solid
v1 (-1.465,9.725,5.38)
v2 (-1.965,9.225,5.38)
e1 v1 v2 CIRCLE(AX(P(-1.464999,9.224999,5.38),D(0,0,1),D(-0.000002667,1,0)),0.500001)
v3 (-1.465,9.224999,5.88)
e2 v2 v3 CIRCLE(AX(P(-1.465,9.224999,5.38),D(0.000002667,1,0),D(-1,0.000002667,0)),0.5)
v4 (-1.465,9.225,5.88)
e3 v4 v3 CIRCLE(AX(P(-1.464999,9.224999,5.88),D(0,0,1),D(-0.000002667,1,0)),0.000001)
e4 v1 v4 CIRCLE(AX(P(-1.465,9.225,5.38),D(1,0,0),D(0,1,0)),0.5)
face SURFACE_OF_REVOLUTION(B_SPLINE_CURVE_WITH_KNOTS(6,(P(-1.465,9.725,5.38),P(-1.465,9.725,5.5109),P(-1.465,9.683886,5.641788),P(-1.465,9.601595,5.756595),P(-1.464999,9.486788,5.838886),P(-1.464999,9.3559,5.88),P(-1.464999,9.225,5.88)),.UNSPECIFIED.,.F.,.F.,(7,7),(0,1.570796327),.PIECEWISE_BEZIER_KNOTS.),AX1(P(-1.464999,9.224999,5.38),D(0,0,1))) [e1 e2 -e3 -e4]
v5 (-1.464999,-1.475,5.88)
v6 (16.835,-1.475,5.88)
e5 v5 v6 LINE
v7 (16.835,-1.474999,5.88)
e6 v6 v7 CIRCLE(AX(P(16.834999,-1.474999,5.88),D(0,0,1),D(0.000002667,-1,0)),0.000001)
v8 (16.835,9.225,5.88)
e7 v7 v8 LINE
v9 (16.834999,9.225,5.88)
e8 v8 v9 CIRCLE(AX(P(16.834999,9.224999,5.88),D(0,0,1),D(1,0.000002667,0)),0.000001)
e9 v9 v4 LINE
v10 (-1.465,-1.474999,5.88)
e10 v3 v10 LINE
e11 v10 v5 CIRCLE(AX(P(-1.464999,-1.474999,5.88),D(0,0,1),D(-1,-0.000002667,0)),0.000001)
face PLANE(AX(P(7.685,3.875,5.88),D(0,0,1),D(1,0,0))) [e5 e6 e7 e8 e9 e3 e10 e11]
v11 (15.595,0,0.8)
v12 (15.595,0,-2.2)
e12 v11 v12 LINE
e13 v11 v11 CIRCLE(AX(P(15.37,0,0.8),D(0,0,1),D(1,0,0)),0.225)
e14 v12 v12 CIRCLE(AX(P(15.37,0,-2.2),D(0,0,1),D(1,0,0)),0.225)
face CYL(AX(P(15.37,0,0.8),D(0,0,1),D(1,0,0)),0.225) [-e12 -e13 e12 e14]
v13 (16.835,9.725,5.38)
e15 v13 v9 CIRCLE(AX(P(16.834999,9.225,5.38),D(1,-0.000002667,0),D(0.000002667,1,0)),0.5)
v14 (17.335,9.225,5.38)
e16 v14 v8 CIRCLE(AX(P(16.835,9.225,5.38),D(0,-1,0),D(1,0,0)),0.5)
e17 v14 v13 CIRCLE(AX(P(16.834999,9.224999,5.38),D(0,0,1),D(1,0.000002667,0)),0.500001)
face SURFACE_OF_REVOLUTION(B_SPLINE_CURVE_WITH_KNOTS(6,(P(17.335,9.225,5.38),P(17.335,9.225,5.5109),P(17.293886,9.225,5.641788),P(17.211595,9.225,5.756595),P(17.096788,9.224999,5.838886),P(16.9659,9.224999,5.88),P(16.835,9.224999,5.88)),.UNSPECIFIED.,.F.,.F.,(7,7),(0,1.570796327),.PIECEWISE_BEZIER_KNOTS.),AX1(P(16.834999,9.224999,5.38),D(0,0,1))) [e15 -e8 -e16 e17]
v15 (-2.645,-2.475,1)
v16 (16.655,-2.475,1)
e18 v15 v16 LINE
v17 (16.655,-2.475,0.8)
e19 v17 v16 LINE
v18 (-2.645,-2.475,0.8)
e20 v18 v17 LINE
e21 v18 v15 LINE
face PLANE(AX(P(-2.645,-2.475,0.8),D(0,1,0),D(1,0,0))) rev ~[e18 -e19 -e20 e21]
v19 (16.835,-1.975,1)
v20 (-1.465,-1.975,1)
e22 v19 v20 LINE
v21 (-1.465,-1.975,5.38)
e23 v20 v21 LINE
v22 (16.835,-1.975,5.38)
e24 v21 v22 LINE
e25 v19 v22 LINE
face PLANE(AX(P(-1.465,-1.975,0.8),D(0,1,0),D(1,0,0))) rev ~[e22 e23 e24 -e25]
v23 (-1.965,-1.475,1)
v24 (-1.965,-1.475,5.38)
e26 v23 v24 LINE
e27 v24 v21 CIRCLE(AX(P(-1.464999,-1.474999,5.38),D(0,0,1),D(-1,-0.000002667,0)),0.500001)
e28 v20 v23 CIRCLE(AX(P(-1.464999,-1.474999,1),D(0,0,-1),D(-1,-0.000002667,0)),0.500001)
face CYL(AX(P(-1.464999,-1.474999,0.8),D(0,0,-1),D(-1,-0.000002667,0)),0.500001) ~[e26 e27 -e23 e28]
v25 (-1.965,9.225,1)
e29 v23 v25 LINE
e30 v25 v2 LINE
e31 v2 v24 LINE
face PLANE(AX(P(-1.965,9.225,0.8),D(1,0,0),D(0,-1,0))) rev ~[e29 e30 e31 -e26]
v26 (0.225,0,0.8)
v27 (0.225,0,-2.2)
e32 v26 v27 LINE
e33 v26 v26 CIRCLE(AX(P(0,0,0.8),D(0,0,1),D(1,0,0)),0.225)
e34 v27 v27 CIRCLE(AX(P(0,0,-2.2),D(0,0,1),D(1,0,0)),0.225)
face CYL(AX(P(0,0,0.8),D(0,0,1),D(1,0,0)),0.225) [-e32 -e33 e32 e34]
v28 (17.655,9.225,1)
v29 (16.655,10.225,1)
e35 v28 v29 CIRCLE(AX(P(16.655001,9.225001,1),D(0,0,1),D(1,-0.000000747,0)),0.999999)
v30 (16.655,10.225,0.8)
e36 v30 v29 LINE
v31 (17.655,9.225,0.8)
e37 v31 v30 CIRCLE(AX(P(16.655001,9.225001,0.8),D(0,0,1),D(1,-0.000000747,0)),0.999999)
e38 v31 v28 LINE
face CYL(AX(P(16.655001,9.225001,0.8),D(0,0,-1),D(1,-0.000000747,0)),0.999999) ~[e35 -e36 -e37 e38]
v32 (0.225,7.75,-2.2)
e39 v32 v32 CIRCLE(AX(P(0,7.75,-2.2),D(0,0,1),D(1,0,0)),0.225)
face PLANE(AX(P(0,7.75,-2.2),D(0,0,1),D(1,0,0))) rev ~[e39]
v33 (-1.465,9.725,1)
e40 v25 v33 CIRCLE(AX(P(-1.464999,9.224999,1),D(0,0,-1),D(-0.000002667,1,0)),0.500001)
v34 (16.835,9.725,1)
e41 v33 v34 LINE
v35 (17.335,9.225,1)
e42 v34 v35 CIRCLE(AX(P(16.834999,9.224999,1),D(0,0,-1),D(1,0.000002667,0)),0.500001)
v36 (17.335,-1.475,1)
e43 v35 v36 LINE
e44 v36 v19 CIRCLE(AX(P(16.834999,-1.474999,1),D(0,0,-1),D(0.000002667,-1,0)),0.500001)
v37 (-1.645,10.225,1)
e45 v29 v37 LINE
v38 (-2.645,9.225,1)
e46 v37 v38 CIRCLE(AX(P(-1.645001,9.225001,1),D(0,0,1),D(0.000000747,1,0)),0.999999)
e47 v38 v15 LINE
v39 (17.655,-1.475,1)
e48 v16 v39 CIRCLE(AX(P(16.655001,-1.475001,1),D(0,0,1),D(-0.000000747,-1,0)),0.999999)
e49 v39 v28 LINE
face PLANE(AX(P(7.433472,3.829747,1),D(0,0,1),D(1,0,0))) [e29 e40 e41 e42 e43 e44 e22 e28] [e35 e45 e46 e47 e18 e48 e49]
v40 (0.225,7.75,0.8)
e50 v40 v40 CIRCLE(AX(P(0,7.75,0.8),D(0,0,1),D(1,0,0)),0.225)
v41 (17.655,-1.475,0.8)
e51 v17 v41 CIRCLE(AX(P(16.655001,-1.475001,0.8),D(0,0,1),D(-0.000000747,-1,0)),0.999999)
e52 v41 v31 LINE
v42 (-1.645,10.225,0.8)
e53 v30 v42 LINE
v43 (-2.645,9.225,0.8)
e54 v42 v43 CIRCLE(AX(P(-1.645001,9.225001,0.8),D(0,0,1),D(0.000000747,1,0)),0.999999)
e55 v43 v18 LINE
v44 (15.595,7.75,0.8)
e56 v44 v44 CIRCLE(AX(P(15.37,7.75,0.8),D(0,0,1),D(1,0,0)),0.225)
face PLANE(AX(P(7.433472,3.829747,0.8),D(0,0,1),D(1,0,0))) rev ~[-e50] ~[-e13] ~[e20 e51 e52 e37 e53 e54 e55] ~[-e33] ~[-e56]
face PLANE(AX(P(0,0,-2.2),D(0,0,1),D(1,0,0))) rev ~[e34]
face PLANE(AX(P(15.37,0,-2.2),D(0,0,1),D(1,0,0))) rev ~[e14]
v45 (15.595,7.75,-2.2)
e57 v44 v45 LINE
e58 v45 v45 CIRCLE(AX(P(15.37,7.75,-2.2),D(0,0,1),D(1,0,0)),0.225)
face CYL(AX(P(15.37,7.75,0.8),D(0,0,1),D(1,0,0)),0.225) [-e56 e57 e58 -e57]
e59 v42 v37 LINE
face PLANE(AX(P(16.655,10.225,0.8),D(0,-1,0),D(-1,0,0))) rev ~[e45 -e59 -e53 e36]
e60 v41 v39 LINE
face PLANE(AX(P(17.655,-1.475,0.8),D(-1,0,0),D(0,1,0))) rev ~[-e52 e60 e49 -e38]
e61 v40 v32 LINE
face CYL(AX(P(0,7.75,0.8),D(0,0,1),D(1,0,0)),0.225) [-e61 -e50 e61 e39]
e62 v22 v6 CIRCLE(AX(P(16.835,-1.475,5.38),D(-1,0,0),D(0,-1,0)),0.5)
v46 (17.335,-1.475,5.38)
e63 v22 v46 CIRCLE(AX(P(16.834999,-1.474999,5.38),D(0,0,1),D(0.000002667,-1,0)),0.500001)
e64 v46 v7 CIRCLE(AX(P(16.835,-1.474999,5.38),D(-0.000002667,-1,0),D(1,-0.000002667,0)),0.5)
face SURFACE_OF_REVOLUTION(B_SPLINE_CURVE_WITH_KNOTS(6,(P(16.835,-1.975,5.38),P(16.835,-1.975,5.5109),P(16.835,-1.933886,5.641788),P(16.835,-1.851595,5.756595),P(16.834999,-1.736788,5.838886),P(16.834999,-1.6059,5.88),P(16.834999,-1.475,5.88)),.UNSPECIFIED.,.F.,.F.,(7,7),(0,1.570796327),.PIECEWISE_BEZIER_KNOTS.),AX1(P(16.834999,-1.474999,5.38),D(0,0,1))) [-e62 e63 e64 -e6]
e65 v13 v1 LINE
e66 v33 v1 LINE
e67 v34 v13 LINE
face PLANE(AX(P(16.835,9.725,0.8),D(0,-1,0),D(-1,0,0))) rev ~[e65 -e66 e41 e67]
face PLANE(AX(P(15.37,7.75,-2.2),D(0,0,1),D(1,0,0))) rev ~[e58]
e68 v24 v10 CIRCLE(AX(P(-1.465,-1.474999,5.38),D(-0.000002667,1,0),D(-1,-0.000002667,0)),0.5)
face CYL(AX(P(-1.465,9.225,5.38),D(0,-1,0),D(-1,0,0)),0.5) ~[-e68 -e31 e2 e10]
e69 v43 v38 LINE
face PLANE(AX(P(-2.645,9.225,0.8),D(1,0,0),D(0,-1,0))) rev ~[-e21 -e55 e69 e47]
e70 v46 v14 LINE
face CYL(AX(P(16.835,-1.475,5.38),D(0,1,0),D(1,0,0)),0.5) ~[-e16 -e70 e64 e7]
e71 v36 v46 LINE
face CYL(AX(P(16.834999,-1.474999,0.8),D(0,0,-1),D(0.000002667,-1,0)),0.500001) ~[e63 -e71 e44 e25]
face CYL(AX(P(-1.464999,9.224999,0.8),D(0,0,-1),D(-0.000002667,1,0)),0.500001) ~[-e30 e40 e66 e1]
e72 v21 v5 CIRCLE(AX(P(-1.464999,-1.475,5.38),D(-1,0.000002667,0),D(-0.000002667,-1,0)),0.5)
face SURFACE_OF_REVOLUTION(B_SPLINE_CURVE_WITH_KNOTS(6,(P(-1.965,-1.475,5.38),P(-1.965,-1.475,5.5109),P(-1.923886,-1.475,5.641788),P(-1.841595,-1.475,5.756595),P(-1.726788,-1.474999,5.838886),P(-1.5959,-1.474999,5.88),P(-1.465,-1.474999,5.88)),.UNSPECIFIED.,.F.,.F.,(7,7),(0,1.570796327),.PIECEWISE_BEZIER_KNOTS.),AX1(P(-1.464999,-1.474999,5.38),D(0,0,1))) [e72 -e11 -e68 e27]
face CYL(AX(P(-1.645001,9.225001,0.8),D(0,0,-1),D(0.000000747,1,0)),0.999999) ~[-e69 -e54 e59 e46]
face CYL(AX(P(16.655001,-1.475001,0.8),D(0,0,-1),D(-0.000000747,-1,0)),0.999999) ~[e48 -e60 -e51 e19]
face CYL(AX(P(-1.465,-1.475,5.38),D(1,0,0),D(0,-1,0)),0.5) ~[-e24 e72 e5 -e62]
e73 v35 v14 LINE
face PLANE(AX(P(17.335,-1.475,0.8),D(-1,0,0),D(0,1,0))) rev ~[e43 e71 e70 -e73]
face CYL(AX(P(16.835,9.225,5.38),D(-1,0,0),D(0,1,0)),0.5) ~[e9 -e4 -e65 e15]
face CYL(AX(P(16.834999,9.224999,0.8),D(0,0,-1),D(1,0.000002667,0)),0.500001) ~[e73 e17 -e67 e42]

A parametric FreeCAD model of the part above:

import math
import FreeCAD as App
import Part
import Sketcher


def edges_at(feature, points):
    """Names of the edges that pass closest to the given points."""
    edges = feature.Shape.Edges
    near = lambda p: min(range(len(edges)), key=lambda i: edges[i].distToShape(Part.Vertex(*p))[0])
    return sorted({f"Edge{near(p) + 1}" for p in points})

doc = App.newDocument("Part")
body = doc.addObject("PartDesign::Body", "Body")

# Sketch on XY plane
sketch1 = body.newObject("Sketcher::SketchObject", "Sketch")
sketch1.AttachmentSupport = (doc.getObject("XY_Plane"), [""])
sketch1.MapMode = "FlatFace"
sketch1.AttachmentOffset = App.Placement(App.Vector(0, 0, 0.8), App.Rotation())
sketch1.addGeometry(Part.LineSegment(App.Vector(-2.6, -2.5, 0), App.Vector(16.7, -2.5, 0)), False)
sketch1.addGeometry(Part.ArcOfCircle(Part.Circle(App.Vector(16.7, -1.5, 0), App.Vector(0, 0, 1), 1), math.radians(-90), math.radians(0)), False)
sketch1.addGeometry(Part.LineSegment(App.Vector(17.7, -1.5, 0), App.Vector(17.7, 9.2, 0)), False)
sketch1.addGeometry(Part.ArcOfCircle(Part.Circle(App.Vector(16.7, 9.2, 0), App.Vector(0, 0, 1), 1), math.radians(0), math.radians(90)), False)
sketch1.addGeometry(Part.LineSegment(App.Vector(16.7, 10.2, 0), App.Vector(-1.6, 10.2, 0)), False)
sketch1.addGeometry(Part.ArcOfCircle(Part.Circle(App.Vector(-1.6, 9.2, 0), App.Vector(0, 0, 1), 1), math.radians(90), math.radians(180)), False)
sketch1.addGeometry(Part.LineSegment(App.Vector(-2.6, 9.2, 0), App.Vector(-2.6, -2.5, 0)), False)
sketch1.addConstraint(Sketcher.Constraint("Tangent", 0, 2, 1, 1))
sketch1.addConstraint(Sketcher.Constraint("Tangent", 1, 2, 2, 1))
sketch1.addConstraint(Sketcher.Constraint("Tangent", 2, 2, 3, 1))
sketch1.addConstraint(Sketcher.Constraint("Tangent", 3, 2, 4, 1))
sketch1.addConstraint(Sketcher.Constraint("Tangent", 4, 2, 5, 1))
sketch1.addConstraint(Sketcher.Constraint("Tangent", 5, 2, 6, 1))
sketch1.addConstraint(Sketcher.Constraint("Coincident", 6, 2, 0, 1))
sketch1.addConstraint(Sketcher.Constraint("Horizontal", 0))
sketch1.addConstraint(Sketcher.Constraint("Vertical", 2))
sketch1.addConstraint(Sketcher.Constraint("Horizontal", 4))
sketch1.addConstraint(Sketcher.Constraint("Vertical", 6))
sketch1.addConstraint(Sketcher.Constraint("Equal", 1, 3))
sketch1.addConstraint(Sketcher.Constraint("Equal", 3, 5))
sketch1.addConstraint(Sketcher.Constraint("Radius", 1, 0.999999))
sketch1.addConstraint(Sketcher.Constraint("DistanceX", 0, 1, 0, 2, 19.3))
sketch1.addConstraint(Sketcher.Constraint("DistanceY", 2, 1, 2, 2, 10.7))
sketch1.addConstraint(Sketcher.Constraint("DistanceX", -1, 1, 1, 3, 16.655001))
sketch1.addConstraint(Sketcher.Constraint("DistanceY", 1, 3, -1, 1, 1.475001))
pad1 = body.newObject("PartDesign::Pad", "Pad")
pad1.Profile = sketch1
pad1.Length = 0.2
body2 = doc.addObject("PartDesign::Body", "Body001")

# Sketch on XY plane
sketch2 = body2.newObject("Sketcher::SketchObject", "Sketch001")
sketch2.AttachmentSupport = (doc.getObject("XY_Plane001"), [""])
sketch2.MapMode = "FlatFace"
sketch2.AttachmentOffset = App.Placement(App.Vector(0, 0, 0.8), App.Rotation())
sketch2.addGeometry(Part.LineSegment(App.Vector(-1.5, -2, 0), App.Vector(16.8, -2, 0)), False)
sketch2.addGeometry(Part.ArcOfCircle(Part.Circle(App.Vector(16.8, -1.5, 0), App.Vector(0, 0, 1), 0.5), math.radians(-90), math.radians(0)), False)
sketch2.addGeometry(Part.LineSegment(App.Vector(17.3, -1.5, 0), App.Vector(17.3, 9.2, 0)), False)
sketch2.addGeometry(Part.ArcOfCircle(Part.Circle(App.Vector(16.8, 9.2, 0), App.Vector(0, 0, 1), 0.5), math.radians(0), math.radians(90)), False)
sketch2.addGeometry(Part.LineSegment(App.Vector(16.8, 9.7, 0), App.Vector(-1.5, 9.7, 0)), False)
sketch2.addGeometry(Part.ArcOfCircle(Part.Circle(App.Vector(-1.5, 9.2, 0), App.Vector(0, 0, 1), 0.5), math.radians(90), math.radians(180)), False)
sketch2.addGeometry(Part.LineSegment(App.Vector(-2, 9.2, 0), App.Vector(-2, -1.5, 0)), False)
sketch2.addGeometry(Part.ArcOfCircle(Part.Circle(App.Vector(-1.5, -1.5, 0), App.Vector(0, 0, 1), 0.5), math.radians(-180), math.radians(-90)), False)
sketch2.addConstraint(Sketcher.Constraint("Coincident", 0, 2, 1, 1))
sketch2.addConstraint(Sketcher.Constraint("Coincident", 1, 2, 2, 1))
sketch2.addConstraint(Sketcher.Constraint("Coincident", 2, 2, 3, 1))
sketch2.addConstraint(Sketcher.Constraint("Coincident", 3, 2, 4, 1))
sketch2.addConstraint(Sketcher.Constraint("Coincident", 4, 2, 5, 1))
sketch2.addConstraint(Sketcher.Constraint("Coincident", 5, 2, 6, 1))
sketch2.addConstraint(Sketcher.Constraint("Coincident", 6, 2, 7, 1))
sketch2.addConstraint(Sketcher.Constraint("Coincident", 7, 2, 0, 1))
sketch2.addConstraint(Sketcher.Constraint("Horizontal", 0))
sketch2.addConstraint(Sketcher.Constraint("Vertical", 2))
sketch2.addConstraint(Sketcher.Constraint("Horizontal", 4))
sketch2.addConstraint(Sketcher.Constraint("Vertical", 6))
sketch2.addConstraint(Sketcher.Constraint("Equal", 1, 3))
sketch2.addConstraint(Sketcher.Constraint("Equal", 3, 5))
sketch2.addConstraint(Sketcher.Constraint("Equal", 5, 7))
sketch2.addConstraint(Sketcher.Constraint("Horizontal", 7, 3, 1, 2))
sketch2.addConstraint(Sketcher.Constraint("Horizontal", 5, 3, 2, 2))
sketch2.addConstraint(Sketcher.Constraint("Horizontal", 2, 2, 5, 2))
sketch2.addConstraint(Sketcher.Constraint("Horizontal", 1, 2, 6, 2))
sketch2.addConstraint(Sketcher.Constraint("Vertical", 3, 3, 0, 2))
sketch2.addConstraint(Sketcher.Constraint("Vertical", 0, 2, 3, 2))
sketch2.addConstraint(Sketcher.Constraint("Vertical", 7, 3, 4, 2))
sketch2.addConstraint(Sketcher.Constraint("Vertical", 4, 2, 7, 2))
sketch2.addConstraint(Sketcher.Constraint("Radius", 1, 0.500001))
sketch2.addConstraint(Sketcher.Constraint("DistanceX", 0, 1, 0, 2, 18.3))
sketch2.addConstraint(Sketcher.Constraint("DistanceY", 2, 1, 2, 2, 10.7))
sketch2.addConstraint(Sketcher.Constraint("DistanceX", -1, 1, 1, 3, 16.834999))
sketch2.addConstraint(Sketcher.Constraint("DistanceY", 1, 3, -1, 1, 1.474999))
pad2 = body2.newObject("PartDesign::Pad", "Pad001")
pad2.Profile = sketch2
pad2.Length = 5.08
doc.recompute()

fillet = body2.newObject("PartDesign::Fillet", "Fillet")
fillet.Base = (pad2, edges_at(pad2, [
    (-1.819, -1.829, 5.88),
    (7.685, -1.975, 5.88),
    (-1.965, 3.875, 5.88),
    (-1.819, 9.579, 5.88),
    (7.685, 9.725, 5.88),
    (17.189, 9.579, 5.88),
    (17.335, 3.875, 5.88),
    (17.189, -1.829, 5.88),
]))
fillet.Radius = 0.5
body3 = doc.addObject("PartDesign::Body", "Body002")
body3.AllowCompound = True

# Sketch on XY plane
sketch3 = body3.newObject("Sketcher::SketchObject", "Sketch002")
sketch3.AttachmentSupport = (doc.getObject("XY_Plane002"), [""])
sketch3.MapMode = "FlatFace"
sketch3.AttachmentOffset = App.Placement(App.Vector(0, 0, 0.8), App.Rotation())
sketch3.addGeometry(Part.Circle(App.Vector(0, 0, 0), App.Vector(0, 0, 1), 0.23), False)
sketch3.addGeometry(Part.Circle(App.Vector(15.37, 0, 0), App.Vector(0, 0, 1), 0.23), False)
sketch3.addGeometry(Part.Circle(App.Vector(15.37, 7.75, 0), App.Vector(0, 0, 1), 0.23), False)
sketch3.addGeometry(Part.Circle(App.Vector(0, 7.75, 0), App.Vector(0, 0, 1), 0.23), False)
sketch3.addConstraint(Sketcher.Constraint("Coincident", 0, 3, -1, 1))
sketch3.addConstraint(Sketcher.Constraint("Equal", 0, 1))
sketch3.addConstraint(Sketcher.Constraint("Equal", 1, 2))
sketch3.addConstraint(Sketcher.Constraint("Equal", 2, 3))
sketch3.addConstraint(Sketcher.Constraint("PointOnObject", 1, 3, -1))
sketch3.addConstraint(Sketcher.Constraint("PointOnObject", 3, 3, -2))
sketch3.addConstraint(Sketcher.Constraint("Horizontal", 2, 3, 3, 3))
sketch3.addConstraint(Sketcher.Constraint("Vertical", 1, 3, 2, 3))
sketch3.addConstraint(Sketcher.Constraint("Diameter", 0, 0.45))
sketch3.addConstraint(Sketcher.Constraint("DistanceX", -1, 1, 1, 3, 15.37))
sketch3.addConstraint(Sketcher.Constraint("DistanceY", -1, 1, 2, 3, 7.75))
pad3 = body3.newObject("PartDesign::Pad", "Pad002")
pad3.Profile = sketch3
pad3.Length = 3
pad3.Reversed = True
doc.recompute()

boolean = body3.newObject("PartDesign::Boolean", "Boolean")
boolean.Type = "Fuse"
boolean.addObjects([body])
doc.recompute()

boolean2 = body3.newObject("PartDesign::Boolean", "Boolean001")
boolean2.Type = "Fuse"
boolean2.addObjects([body2])

doc.recompute()
